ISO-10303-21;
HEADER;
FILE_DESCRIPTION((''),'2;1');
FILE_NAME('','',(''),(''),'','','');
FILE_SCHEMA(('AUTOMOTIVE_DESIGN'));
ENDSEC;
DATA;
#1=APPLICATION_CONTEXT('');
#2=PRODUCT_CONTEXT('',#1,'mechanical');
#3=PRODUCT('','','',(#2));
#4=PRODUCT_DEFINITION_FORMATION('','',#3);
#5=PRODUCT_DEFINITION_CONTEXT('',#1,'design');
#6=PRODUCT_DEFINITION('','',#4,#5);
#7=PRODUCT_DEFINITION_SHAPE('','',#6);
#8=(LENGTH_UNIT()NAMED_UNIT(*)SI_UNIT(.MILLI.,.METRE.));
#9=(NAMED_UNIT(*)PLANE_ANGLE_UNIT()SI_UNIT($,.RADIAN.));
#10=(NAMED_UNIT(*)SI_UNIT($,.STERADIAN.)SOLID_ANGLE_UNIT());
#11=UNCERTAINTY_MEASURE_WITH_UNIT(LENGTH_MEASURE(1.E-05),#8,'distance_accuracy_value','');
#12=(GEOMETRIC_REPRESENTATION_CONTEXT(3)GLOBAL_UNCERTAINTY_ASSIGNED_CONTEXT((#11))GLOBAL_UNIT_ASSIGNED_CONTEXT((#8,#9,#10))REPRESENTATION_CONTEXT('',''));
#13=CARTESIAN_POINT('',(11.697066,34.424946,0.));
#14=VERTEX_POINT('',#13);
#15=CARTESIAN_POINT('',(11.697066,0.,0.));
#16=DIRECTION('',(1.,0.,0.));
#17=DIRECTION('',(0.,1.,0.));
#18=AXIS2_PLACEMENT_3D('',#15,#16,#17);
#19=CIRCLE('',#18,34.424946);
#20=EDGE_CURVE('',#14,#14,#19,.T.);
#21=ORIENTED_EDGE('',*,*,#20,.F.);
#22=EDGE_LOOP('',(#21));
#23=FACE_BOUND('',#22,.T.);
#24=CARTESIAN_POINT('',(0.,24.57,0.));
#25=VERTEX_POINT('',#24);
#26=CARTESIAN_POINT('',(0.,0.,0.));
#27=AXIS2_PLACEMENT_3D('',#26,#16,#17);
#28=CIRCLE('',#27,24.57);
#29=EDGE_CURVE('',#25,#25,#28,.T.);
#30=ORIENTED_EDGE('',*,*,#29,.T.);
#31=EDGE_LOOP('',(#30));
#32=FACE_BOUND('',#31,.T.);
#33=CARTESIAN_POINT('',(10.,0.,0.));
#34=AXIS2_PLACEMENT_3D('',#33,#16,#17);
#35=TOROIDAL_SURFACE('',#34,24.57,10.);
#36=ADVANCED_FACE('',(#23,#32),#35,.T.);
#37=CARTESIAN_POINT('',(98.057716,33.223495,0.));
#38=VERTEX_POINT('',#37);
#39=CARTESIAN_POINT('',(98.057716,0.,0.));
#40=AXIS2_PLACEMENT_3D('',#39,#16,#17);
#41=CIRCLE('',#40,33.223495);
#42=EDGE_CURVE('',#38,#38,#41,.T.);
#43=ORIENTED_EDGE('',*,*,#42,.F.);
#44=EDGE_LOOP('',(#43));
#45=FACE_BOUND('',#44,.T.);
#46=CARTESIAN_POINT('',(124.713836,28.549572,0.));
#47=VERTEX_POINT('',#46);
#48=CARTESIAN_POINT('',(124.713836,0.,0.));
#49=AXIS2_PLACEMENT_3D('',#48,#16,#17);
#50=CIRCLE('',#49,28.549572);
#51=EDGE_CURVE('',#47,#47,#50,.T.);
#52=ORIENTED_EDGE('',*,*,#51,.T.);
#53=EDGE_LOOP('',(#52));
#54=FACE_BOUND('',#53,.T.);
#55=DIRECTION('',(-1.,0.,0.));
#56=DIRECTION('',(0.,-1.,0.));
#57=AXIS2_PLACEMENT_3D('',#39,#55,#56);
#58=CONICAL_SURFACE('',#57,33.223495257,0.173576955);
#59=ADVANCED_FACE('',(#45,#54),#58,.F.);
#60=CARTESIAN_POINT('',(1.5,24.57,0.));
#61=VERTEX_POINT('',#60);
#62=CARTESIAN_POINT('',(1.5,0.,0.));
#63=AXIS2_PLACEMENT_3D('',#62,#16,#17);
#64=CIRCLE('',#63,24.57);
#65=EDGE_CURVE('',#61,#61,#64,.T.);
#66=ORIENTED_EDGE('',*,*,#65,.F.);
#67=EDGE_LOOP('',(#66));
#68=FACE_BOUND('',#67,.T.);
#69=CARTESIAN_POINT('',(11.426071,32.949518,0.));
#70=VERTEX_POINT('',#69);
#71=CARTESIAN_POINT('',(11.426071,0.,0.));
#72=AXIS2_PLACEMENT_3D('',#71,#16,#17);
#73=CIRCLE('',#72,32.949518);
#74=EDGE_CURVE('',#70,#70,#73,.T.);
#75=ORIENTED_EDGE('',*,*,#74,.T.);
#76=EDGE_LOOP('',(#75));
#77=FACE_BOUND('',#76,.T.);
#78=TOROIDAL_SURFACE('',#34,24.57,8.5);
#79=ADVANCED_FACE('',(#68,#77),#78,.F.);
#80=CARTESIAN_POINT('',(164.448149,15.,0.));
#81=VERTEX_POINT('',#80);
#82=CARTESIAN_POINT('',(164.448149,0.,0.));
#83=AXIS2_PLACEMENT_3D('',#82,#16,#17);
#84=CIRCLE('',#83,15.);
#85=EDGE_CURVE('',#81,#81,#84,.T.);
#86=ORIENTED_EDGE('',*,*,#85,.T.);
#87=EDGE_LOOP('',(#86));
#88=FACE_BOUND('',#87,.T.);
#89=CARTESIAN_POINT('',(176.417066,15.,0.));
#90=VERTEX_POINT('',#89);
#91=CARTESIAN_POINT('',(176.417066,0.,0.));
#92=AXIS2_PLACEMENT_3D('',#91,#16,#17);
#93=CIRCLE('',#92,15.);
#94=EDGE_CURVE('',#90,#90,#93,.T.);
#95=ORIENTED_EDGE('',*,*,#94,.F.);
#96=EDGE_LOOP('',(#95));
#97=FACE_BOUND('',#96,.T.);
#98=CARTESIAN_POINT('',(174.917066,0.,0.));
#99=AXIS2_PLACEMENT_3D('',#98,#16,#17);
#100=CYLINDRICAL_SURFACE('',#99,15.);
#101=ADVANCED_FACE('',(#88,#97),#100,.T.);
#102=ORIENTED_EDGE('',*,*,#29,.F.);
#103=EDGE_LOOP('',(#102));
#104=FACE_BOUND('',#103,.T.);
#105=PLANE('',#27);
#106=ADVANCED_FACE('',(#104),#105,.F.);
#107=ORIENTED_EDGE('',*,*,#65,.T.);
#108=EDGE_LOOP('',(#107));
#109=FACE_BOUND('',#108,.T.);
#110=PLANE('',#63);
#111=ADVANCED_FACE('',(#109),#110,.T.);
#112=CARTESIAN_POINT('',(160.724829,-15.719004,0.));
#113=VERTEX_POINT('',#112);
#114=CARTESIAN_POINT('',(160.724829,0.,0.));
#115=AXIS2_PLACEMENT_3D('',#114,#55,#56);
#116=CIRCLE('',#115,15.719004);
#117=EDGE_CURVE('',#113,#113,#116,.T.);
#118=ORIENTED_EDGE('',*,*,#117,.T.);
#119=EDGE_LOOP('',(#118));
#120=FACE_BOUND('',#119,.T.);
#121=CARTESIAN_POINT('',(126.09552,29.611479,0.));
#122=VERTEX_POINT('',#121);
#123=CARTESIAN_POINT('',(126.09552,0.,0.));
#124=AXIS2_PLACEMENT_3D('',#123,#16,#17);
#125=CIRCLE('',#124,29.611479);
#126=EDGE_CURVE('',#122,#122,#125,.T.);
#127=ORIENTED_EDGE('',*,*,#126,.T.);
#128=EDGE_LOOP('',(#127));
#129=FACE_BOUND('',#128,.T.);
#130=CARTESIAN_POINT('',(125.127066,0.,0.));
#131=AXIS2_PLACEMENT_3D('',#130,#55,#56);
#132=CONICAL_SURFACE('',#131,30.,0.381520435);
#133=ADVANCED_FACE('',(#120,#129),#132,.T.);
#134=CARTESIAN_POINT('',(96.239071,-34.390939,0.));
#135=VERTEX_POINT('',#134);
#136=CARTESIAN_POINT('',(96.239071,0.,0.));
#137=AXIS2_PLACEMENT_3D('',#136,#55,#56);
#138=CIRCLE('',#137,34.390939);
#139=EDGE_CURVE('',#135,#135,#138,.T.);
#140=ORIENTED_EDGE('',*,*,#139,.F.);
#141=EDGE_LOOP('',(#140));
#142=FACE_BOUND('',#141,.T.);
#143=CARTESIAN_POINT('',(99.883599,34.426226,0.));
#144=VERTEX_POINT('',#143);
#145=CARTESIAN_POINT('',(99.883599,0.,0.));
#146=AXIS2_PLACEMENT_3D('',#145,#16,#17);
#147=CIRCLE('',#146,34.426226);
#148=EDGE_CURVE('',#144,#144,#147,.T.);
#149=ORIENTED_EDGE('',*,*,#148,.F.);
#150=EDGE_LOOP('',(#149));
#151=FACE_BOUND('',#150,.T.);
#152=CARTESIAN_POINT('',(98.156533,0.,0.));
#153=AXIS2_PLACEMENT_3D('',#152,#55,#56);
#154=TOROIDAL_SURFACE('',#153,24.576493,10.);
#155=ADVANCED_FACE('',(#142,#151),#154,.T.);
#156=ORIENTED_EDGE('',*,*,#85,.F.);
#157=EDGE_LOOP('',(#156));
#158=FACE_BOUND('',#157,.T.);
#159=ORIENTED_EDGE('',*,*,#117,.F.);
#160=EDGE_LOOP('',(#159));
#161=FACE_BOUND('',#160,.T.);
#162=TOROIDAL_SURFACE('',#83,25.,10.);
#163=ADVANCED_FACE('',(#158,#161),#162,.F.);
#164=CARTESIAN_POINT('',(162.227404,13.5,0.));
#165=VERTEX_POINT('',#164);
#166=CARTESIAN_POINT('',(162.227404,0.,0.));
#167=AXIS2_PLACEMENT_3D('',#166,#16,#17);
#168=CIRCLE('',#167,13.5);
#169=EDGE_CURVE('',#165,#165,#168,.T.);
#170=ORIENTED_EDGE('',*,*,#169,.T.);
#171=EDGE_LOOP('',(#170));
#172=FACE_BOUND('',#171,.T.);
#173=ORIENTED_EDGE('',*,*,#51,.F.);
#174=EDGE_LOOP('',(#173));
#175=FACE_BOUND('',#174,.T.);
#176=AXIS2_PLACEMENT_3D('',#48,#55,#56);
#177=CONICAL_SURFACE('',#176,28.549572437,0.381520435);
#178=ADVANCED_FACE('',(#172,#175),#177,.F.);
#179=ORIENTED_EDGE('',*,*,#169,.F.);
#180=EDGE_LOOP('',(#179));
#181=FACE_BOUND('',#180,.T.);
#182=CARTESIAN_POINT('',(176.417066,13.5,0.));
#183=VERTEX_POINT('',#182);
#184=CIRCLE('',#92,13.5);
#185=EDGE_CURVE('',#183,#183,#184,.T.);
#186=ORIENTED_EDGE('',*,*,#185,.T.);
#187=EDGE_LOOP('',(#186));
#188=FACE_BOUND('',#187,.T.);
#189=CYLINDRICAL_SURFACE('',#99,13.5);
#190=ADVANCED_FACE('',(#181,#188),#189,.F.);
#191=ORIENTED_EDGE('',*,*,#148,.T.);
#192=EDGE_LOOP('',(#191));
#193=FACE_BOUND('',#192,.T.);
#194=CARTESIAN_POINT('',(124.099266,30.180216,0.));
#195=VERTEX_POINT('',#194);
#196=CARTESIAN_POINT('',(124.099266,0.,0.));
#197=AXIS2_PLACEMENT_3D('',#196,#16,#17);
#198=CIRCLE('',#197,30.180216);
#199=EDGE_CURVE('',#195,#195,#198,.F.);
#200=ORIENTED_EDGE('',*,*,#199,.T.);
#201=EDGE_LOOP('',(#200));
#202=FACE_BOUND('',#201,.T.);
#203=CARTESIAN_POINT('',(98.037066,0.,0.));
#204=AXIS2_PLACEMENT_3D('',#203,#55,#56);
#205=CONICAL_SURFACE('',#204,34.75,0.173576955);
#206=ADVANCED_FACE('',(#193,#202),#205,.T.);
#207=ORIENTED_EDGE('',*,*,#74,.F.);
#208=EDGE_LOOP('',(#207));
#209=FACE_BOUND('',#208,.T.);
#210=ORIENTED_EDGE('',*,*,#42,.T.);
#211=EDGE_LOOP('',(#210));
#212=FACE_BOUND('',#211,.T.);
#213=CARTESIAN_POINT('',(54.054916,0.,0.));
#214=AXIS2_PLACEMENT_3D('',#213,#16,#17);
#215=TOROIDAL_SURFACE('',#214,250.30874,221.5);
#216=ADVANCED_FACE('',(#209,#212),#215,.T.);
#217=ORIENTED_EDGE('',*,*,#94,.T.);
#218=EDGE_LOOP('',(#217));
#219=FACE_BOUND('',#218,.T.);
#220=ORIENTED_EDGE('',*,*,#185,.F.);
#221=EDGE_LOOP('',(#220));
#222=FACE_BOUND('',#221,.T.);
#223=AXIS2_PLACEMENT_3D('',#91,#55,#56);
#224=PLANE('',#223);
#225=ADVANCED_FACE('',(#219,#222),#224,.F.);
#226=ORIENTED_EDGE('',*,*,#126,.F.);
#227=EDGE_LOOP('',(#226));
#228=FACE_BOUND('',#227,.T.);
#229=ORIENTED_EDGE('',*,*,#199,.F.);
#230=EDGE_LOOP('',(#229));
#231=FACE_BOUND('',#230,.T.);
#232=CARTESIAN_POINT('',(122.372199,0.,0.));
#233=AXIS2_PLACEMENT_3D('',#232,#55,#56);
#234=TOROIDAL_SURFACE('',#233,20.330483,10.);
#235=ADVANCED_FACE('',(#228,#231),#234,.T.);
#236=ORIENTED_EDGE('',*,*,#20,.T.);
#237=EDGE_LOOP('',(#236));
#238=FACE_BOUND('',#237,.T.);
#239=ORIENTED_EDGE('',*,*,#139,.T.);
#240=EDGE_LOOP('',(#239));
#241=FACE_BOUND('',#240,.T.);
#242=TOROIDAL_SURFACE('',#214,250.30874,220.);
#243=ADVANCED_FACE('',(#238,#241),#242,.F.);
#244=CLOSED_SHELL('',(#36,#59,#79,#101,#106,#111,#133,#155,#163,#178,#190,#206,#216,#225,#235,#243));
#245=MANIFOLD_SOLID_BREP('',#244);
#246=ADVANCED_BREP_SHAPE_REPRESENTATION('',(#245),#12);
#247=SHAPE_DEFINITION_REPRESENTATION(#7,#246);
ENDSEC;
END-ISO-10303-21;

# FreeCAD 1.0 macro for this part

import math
import FreeCAD as App
import Part
import Sketcher

V = App.Vector


def edges_at(feature, points):
    """Names of the edges that pass closest to the given points."""
    edges = feature.Shape.Edges
    near = lambda p: min(range(len(edges)), key=lambda i: edges[i].distToShape(Part.Vertex(*p))[0])
    return sorted({f"Edge{near(p) + 1}" for p in points})

doc = App.newDocument("Part")
body = doc.addObject("PartDesign::Body", "Body")

sketch1 = body.newObject("Sketcher::SketchObject", "Sketch")
sketch1.AttachmentSupport = (doc.getObject("XY_Plane"), [""])
sketch1.MapMode = "FlatFace"
sketch1.addGeometry(Part.ArcOfCircle(Part.Circle(V(10, 24.57, 0), V(0, 0, 1), 8.5), math.radians(80.341637), math.radians(180)), False)
sketch1.addGeometry(Part.ArcOfCircle(Part.Circle(V(54.054916, 250.30874, 0), V(0, 0, 1), 221.5), math.radians(-101.096107), math.radians(-78.541493)), False)
sketch1.addGeometry(Part.LineSegment(V(98.057716, 33.223495, 0), V(124.713836, 28.549572, 0)), False)
sketch1.addGeometry(Part.LineSegment(V(124.713836, 28.549572, 0), V(162.227404, 13.5, 0)), False)
sketch1.addGeometry(Part.LineSegment(V(162.227404, 13.5, 0), V(176.417066, 13.5, 0)), False)
sketch1.addGeometry(Part.LineSegment(V(176.417066, 13.5, 0), V(176.417066, 15, 0)), False)
sketch1.addGeometry(Part.LineSegment(V(176.417066, 15, 0), V(162.517066, 15, 0)), False)
sketch1.addGeometry(Part.LineSegment(V(162.517066, 15, 0), V(125.127066, 30, 0)), False)
sketch1.addGeometry(Part.LineSegment(V(125.127066, 30, 0), V(98.037066, 34.75, 0)), False)
sketch1.addGeometry(Part.ArcOfCircle(Part.Circle(V(54.054916, 250.30874, 0), V(0, 0, 1), 220), math.radians(-101.100801), math.radians(-78.467786)), False)
sketch1.addGeometry(Part.ArcOfCircle(Part.Circle(V(10, 24.57, 0), V(0, 0, 1), 10), math.radians(80.229239), math.radians(180)), False)
sketch1.addGeometry(Part.LineSegment(V(0, 24.57, 0), V(0, 0, 0)), False)
sketch1.addGeometry(Part.LineSegment(V(0, 0, 0), V(1.5, 0, 0)), False)
sketch1.addGeometry(Part.LineSegment(V(1.5, 0, 0), V(1.5, 24.57, 0)), False)
sketch1.addConstraint(Sketcher.Constraint("Coincident", 0, 1, 1, 1))
sketch1.addConstraint(Sketcher.Constraint("Coincident", 1, 2, 2, 1))
sketch1.addConstraint(Sketcher.Constraint("Coincident", 2, 2, 3, 1))
sketch1.addConstraint(Sketcher.Constraint("Coincident", 3, 2, 4, 1))
sketch1.addConstraint(Sketcher.Constraint("Coincident", 4, 2, 5, 1))
sketch1.addConstraint(Sketcher.Constraint("Coincident", 5, 2, 6, 1))
sketch1.addConstraint(Sketcher.Constraint("Coincident", 6, 2, 7, 1))
sketch1.addConstraint(Sketcher.Constraint("Coincident", 7, 2, 8, 1))
sketch1.addConstraint(Sketcher.Constraint("Coincident", 8, 2, 9, 2))
sketch1.addConstraint(Sketcher.Constraint("Coincident", 9, 1, 10, 1))
sketch1.addConstraint(Sketcher.Constraint("Tangent", 10, 2, 11, 1))
sketch1.addConstraint(Sketcher.Constraint("Coincident", 11, 2, 12, 1))
sketch1.addConstraint(Sketcher.Constraint("Coincident", 12, 2, 13, 1))
sketch1.addConstraint(Sketcher.Constraint("Tangent", 13, 2, 0, 2))
sketch1.addConstraint(Sketcher.Constraint("Horizontal", 4))
sketch1.addConstraint(Sketcher.Constraint("Vertical", 5))
sketch1.addConstraint(Sketcher.Constraint("Horizontal", 6))
sketch1.addConstraint(Sketcher.Constraint("Vertical", 11))
sketch1.addConstraint(Sketcher.Constraint("Horizontal", 12))
sketch1.addConstraint(Sketcher.Constraint("Vertical", 13))
sketch1.addConstraint(Sketcher.Constraint("Coincident", 11, 2, -1, 1))
sketch1.addConstraint(Sketcher.Constraint("Coincident", 9, 3, 1, 3))
sketch1.addConstraint(Sketcher.Constraint("Coincident", 10, 3, 0, 3))
sketch1.addConstraint(Sketcher.Constraint("Parallel", 3, 7))
sketch1.addConstraint(Sketcher.Constraint("Parallel", 2, 8))
sketch1.addConstraint(Sketcher.Constraint("Equal", 12, 5))
sketch1.addConstraint(Sketcher.Constraint("Radius", 9, 220.0))
sketch1.addConstraint(Sketcher.Constraint("Radius", 10, 10.0))
sketch1.addConstraint(Sketcher.Constraint("Radius", 0, 8.5))
sketch1.addConstraint(Sketcher.Constraint("Radius", 1, 221.5))
sketch1.addConstraint(Sketcher.Constraint("DistanceX", 6, 2, 6, 1, 13.9))
sketch1.addConstraint(Sketcher.Constraint("DistanceY", -1, 1, 5, 2, 15.0))
sketch1.addConstraint(Sketcher.Constraint("DistanceY", -1, 1, 7, 2, 30.0))
sketch1.addConstraint(Sketcher.Constraint("DistanceY", 11, 2, 11, 1, 24.57))
sketch1.addConstraint(Sketcher.Constraint("DistanceY", -1, 1, 8, 2, 34.75))
sketch1.addConstraint(Sketcher.Constraint("DistanceX", 7, 2, 6, 2, 37.39))
sketch1.addConstraint(Sketcher.Constraint("DistanceX", 8, 2, 7, 2, 27.09))
sketch1.addConstraint(Sketcher.Constraint("DistanceX", 9, 1, 8, 2, 86.34))
sketch1.addConstraint(Sketcher.Constraint("DistanceX", 1, 3, 1, 2, 44.0028))
sketch1.addConstraint(Sketcher.Constraint("DistanceX", 4, 1, 4, 2, 14.189662))
sketch1.addConstraint(Sketcher.Constraint("DistanceY", -1, 1, 1, 3, 250.30874))
revolution = body.newObject("PartDesign::Revolution", "Revolution")
revolution.Profile = sketch1
revolution.ReferenceAxis = (sketch1, ["H_Axis"])
revolution.Angle = 360
doc.recompute()

fillet = body.newObject("PartDesign::Fillet", "Fillet")
fillet.Base = (revolution, edges_at(revolution, [(98.037, -34.75, 0), (125.127, -30, 0), (162.517, -15, 0)]))
fillet.Radius = 10

doc.recompute()
